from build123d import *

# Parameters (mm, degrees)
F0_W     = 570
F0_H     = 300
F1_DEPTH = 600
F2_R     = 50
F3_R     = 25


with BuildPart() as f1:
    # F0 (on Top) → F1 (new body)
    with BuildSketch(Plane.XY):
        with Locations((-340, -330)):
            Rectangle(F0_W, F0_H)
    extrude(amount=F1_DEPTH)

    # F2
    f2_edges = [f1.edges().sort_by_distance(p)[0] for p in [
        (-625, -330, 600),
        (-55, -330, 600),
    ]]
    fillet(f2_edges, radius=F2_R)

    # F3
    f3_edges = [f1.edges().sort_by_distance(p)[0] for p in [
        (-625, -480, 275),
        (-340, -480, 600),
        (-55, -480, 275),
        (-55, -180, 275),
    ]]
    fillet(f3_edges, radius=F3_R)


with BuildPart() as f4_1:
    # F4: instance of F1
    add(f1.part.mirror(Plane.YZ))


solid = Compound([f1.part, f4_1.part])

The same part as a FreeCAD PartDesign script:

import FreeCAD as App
import Part
import Sketcher
from FreeCAD import Vector


def edges_at(feature, points):
    """Names of the edges that pass closest to the given points."""
    edges = feature.Shape.Edges
    near = lambda p: min(range(len(edges)), key=lambda i: edges[i].distToShape(Part.Vertex(*p))[0])
    return sorted({f"Edge{near(p) + 1}" for p in points})

doc = App.newDocument("Part")
body = doc.addObject("PartDesign::Body", "Body")

# Sketch on XY plane
sketch1 = body.newObject("Sketcher::SketchObject", "Sketch")
sketch1.AttachmentSupport = (doc.getObject("XY_Plane"), [""])
sketch1.MapMode = "FlatFace"
sketch1.addGeometry(Part.LineSegment(Vector(-625, -180, 0), Vector(-625, -480, 0)), False)
sketch1.addGeometry(Part.LineSegment(Vector(-625, -480, 0), Vector(-55, -480, 0)), False)
sketch1.addGeometry(Part.LineSegment(Vector(-55, -480, 0), Vector(-55, -180, 0)), False)
sketch1.addGeometry(Part.LineSegment(Vector(-55, -180, 0), Vector(-625, -180, 0)), False)
sketch1.addConstraint(Sketcher.Constraint("Coincident", 0, 2, 1, 1))
sketch1.addConstraint(Sketcher.Constraint("Coincident", 1, 2, 2, 1))
sketch1.addConstraint(Sketcher.Constraint("Coincident", 2, 2, 3, 1))
sketch1.addConstraint(Sketcher.Constraint("Coincident", 3, 2, 0, 1))
sketch1.addConstraint(Sketcher.Constraint("Vertical", 0))
sketch1.addConstraint(Sketcher.Constraint("Horizontal", 1))
sketch1.addConstraint(Sketcher.Constraint("Vertical", 2))
sketch1.addConstraint(Sketcher.Constraint("Horizontal", 3))
sketch1.addConstraint(Sketcher.Constraint("DistanceX", 1, 1, 1, 2, 570.0))
sketch1.addConstraint(Sketcher.Constraint("DistanceY", 0, 2, 0, 1, 300.0))
sketch1.addConstraint(Sketcher.Constraint("DistanceX", 0, 2, -1, 1, 625.0))
sketch1.addConstraint(Sketcher.Constraint("DistanceY", 0, 2, -1, 1, 480.0))
pad1 = body.newObject("PartDesign::Pad", "Pad")
pad1.Profile = sketch1
pad1.Length = 600
doc.recompute()

fillet = body.newObject("PartDesign::Fillet", "Fillet")
fillet.Base = (pad1, edges_at(pad1, [(-625, -330, 600), (-55, -330, 600)]))
fillet.Radius = 50
doc.recompute()

fillet2 = body.newObject("PartDesign::Fillet", "Fillet001")
fillet2.Base = (fillet, edges_at(fillet, [
    (-625, -480, 275),
    (-340, -480, 600),
    (-55, -480, 275),
    (-55, -180, 275),
]))
fillet2.Radius = 25
body2 = doc.addObject("PartDesign::Body", "Body001")
doc.recompute()

mirroring = doc.addObject("Part::Mirroring", "Mirroring")
mirroring.Source = body
mirroring.Base = Vector(0, 0, 0)
mirroring.Normal = Vector(1, 0, 0)
body2.BaseFeature = mirroring
doc.recompute()
mirroring.Visibility = False

doc.recompute()
